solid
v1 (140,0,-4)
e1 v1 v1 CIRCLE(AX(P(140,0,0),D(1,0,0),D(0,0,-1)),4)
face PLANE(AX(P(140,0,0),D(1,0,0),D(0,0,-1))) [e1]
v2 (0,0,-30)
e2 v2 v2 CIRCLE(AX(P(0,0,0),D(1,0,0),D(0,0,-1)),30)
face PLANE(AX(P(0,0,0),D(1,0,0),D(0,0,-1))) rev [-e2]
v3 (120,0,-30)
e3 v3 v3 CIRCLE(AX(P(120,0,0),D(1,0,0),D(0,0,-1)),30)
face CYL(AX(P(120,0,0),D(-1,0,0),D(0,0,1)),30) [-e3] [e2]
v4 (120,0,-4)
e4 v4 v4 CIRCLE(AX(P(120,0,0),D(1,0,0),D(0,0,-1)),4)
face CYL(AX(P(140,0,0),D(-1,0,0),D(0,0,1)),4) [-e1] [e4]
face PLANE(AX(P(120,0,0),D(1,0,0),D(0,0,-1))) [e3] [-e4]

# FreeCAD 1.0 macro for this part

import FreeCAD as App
import Part
import Sketcher
Q = App.Units.Quantity

doc = App.newDocument("Part")
body = doc.addObject("PartDesign::Body", "Body")

sketch1 = doc.addObject("Sketcher::SketchObject", "Sketch")
body.addObject(sketch1)
sketch1.AttachmentSupport = (doc.YZ_Plane, [""])
sketch1.MapMode = "FlatFace"
sketch1.addGeometry(Part.Circle(App.Vector(0, 0, 0), App.Vector(0, 0, 1), 30), False)
sketch1.addConstraint(Sketcher.Constraint("Coincident", 0, 3, -1, 1))
sketch1.addConstraint(Sketcher.Constraint("Diameter", 0, Q("60 mm")))
pad1 = doc.addObject("PartDesign::Pad", "Pad")
body.addObject(pad1)
pad1.Profile = sketch1
pad1.Length = 120

sketch2 = doc.addObject("Sketcher::SketchObject", "Sketch001")
body.addObject(sketch2)
sketch2.AttachmentSupport = (doc.YZ_Plane, [""])
sketch2.MapMode = "FlatFace"
sketch2.AttachmentOffset = App.Placement(App.Vector(0, 0, 120), App.Rotation())
sketch2.addGeometry(Part.Circle(App.Vector(0, 0, 0), App.Vector(0, 0, 1), 4), False)
sketch2.addConstraint(Sketcher.Constraint("Coincident", 0, 3, -1, 1))
sketch2.addConstraint(Sketcher.Constraint("Diameter", 0, Q("8 mm")))
pad2 = doc.addObject("PartDesign::Pad", "Pad001")
body.addObject(pad2)
pad2.Profile = sketch2
pad2.Length = 20

doc.recompute()
